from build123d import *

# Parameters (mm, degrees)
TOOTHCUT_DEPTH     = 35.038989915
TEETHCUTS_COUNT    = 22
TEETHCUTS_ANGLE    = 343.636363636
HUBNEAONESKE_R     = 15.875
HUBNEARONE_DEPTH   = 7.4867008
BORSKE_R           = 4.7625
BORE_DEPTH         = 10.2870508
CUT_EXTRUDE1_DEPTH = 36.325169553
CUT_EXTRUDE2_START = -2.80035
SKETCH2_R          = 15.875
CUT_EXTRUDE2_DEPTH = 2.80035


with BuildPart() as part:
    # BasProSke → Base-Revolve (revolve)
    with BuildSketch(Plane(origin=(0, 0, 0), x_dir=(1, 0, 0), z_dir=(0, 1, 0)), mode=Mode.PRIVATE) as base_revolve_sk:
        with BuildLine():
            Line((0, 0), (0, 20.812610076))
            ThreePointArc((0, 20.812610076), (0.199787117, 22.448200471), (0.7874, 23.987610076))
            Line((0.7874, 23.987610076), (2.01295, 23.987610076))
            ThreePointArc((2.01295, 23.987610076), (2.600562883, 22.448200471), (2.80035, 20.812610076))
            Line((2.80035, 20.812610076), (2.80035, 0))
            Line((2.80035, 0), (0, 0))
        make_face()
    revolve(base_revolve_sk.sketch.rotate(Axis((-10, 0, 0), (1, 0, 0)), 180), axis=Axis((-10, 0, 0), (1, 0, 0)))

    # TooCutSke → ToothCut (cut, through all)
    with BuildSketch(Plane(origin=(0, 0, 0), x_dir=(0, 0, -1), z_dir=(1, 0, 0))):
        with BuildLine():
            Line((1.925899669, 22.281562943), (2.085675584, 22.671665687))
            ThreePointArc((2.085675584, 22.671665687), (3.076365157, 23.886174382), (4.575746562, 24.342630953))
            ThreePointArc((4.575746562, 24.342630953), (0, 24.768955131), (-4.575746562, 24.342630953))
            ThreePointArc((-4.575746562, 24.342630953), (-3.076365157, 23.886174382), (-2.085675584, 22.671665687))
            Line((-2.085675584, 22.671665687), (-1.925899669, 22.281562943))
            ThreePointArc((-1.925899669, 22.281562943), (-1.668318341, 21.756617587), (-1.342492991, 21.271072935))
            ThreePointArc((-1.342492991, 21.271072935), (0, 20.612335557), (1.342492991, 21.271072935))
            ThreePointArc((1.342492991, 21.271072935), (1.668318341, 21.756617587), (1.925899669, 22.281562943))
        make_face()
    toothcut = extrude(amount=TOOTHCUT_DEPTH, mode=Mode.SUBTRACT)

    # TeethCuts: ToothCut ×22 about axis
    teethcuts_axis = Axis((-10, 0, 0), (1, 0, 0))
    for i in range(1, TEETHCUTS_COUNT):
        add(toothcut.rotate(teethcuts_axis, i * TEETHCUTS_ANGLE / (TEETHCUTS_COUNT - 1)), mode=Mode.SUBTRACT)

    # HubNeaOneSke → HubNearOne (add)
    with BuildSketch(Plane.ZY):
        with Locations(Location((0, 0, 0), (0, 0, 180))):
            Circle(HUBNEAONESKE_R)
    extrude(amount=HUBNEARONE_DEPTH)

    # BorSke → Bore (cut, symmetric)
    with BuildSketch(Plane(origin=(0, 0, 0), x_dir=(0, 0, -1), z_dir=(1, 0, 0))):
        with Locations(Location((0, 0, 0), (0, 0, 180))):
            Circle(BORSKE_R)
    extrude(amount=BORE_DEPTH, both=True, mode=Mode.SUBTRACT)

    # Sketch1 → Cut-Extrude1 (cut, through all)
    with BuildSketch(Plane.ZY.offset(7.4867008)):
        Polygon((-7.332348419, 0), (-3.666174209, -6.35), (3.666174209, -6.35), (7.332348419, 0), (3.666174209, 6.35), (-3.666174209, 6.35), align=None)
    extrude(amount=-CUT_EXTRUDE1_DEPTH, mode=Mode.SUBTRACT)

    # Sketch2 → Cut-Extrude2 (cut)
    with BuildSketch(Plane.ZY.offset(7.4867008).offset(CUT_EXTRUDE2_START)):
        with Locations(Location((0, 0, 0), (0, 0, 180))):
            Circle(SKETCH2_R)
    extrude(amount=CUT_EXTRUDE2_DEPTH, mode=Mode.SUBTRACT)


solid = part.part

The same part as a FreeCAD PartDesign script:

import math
import FreeCAD as App
import Part
import Sketcher
Q = App.Units.Quantity

doc = App.newDocument("Part")
body = doc.addObject("PartDesign::Body", "Body")

# Sketch on XZ plane
sketch1 = body.newObject("Sketcher::SketchObject", "Sketch")
sketch1.AttachmentSupport = (doc.getObject("XZ_Plane"), [""])
sketch1.MapMode = "FlatFace"
sketch1.addGeometry(Part.LineSegment(App.Vector(0, -20.8, 0), App.Vector(0, 0, 0)), False)
sketch1.addGeometry(Part.LineSegment(App.Vector(0, 0, 0), App.Vector(2.8, 0, 0)), False)
sketch1.addGeometry(Part.LineSegment(App.Vector(2.8, 0, 0), App.Vector(2.8, -20.8, 0)), False)
sketch1.addGeometry(Part.ArcOfCircle(Part.Circle(App.Vector(-4, -20.8, 0), App.Vector(0, 0, 1), 6.8), math.radians(-28), math.radians(0)), False)
sketch1.addGeometry(Part.LineSegment(App.Vector(2, -24, 0), App.Vector(0.8, -24, 0)), False)
sketch1.addGeometry(Part.ArcOfCircle(Part.Circle(App.Vector(6.8, -20.8, 0), App.Vector(0, 0, 1), 6.8), math.radians(180), math.radians(208)), False)
sketch1.addConstraint(Sketcher.Constraint("Coincident", 0, 2, 1, 1))
sketch1.addConstraint(Sketcher.Constraint("Coincident", 1, 2, 2, 1))
sketch1.addConstraint(Sketcher.Constraint("Tangent", 2, 2, 3, 2))
sketch1.addConstraint(Sketcher.Constraint("Coincident", 3, 1, 4, 1))
sketch1.addConstraint(Sketcher.Constraint("Coincident", 4, 2, 5, 2))
sketch1.addConstraint(Sketcher.Constraint("Tangent", 5, 1, 0, 1))
sketch1.addConstraint(Sketcher.Constraint("Vertical", 0))
sketch1.addConstraint(Sketcher.Constraint("Horizontal", 1))
sketch1.addConstraint(Sketcher.Constraint("Vertical", 2))
sketch1.addConstraint(Sketcher.Constraint("Horizontal", 4))
sketch1.addConstraint(Sketcher.Constraint("Coincident", 0, 2, -1, 1))
sketch1.addConstraint(Sketcher.Constraint("Equal", 3, 5))
sketch1.addConstraint(Sketcher.Constraint("Horizontal", 3, 3, 5, 3))
sketch1.addConstraint(Sketcher.Constraint("DistanceX", -1, 1, 4, 2, Q("0.031 in")))
sketch1.addConstraint(Sketcher.Constraint("Radius", 3, 6.79491))
sketch1.addConstraint(Sketcher.Constraint("DistanceX", 1, 1, 1, 2, 2.80035))
sketch1.addConstraint(Sketcher.Constraint("DistanceY", 0, 1, 0, 2, 20.81261))
revolution = body.newObject("PartDesign::Revolution", "Revolution")
revolution.Profile = sketch1
revolution.ReferenceAxis = (sketch1, ["H_Axis"])
revolution.Angle = 360

# Sketch on YZ plane
sketch2 = body.newObject("Sketcher::SketchObject", "Sketch001")
sketch2.AttachmentSupport = (doc.getObject("YZ_Plane"), [""])
sketch2.MapMode = "FlatFace"
sketch2.addGeometry(Part.LineSegment(App.Vector(22.28, -1.93, 0), App.Vector(22.67, -2.09, 0)), False)
sketch2.addGeometry(Part.ArcOfCircle(Part.Circle(App.Vector(21.65, -4.58, 0), App.Vector(0, 0, 1), 2.69), math.radians(0), math.radians(68)), False)
sketch2.addGeometry(Part.ArcOfCircle(Part.Circle(App.Vector(0, 0, 0), App.Vector(0, 0, 1), 24.77), math.radians(-11), math.radians(11)), False)
sketch2.addGeometry(Part.ArcOfCircle(Part.Circle(App.Vector(21.65, 4.58, 0), App.Vector(0, 0, 1), 2.69), math.radians(-68), math.radians(0)), False)
sketch2.addGeometry(Part.LineSegment(App.Vector(22.67, 2.09, 0), App.Vector(22.28, 1.93, 0)), False)
sketch2.addGeometry(Part.ArcOfCircle(Part.Circle(App.Vector(23.93, -2.09, 0), App.Vector(0, 0, 1), 4.34), math.radians(112.27), math.radians(127.73)), False)
sketch2.addGeometry(Part.ArcOfCircle(Part.Circle(App.Vector(22.31, 0, 0), App.Vector(0, 0, 1), 1.7), math.radians(128), math.radians(232)), False)
sketch2.addGeometry(Part.ArcOfCircle(Part.Circle(App.Vector(23.93, 2.09, 0), App.Vector(0, 0, 1), 4.34), math.radians(-127.73), math.radians(-112.27)), False)
sketch2.addConstraint(Sketcher.Constraint("Tangent", 0, 2, 1, 2))
sketch2.addConstraint(Sketcher.Constraint("Coincident", 1, 1, 2, 1))
sketch2.addConstraint(Sketcher.Constraint("Coincident", 2, 2, 3, 2))
sketch2.addConstraint(Sketcher.Constraint("Tangent", 3, 1, 4, 1))
sketch2.addConstraint(Sketcher.Constraint("Tangent", 4, 2, 5, 1))
sketch2.addConstraint(Sketcher.Constraint("Tangent", 5, 2, 6, 1))
sketch2.addConstraint(Sketcher.Constraint("Tangent", 6, 2, 7, 1))
sketch2.addConstraint(Sketcher.Constraint("Tangent", 7, 2, 0, 1))
sketch2.addConstraint(Sketcher.Constraint("Coincident", 2, 3, -1, 1))
sketch2.addConstraint(Sketcher.Constraint("Equal", 1, 3))
sketch2.addConstraint(Sketcher.Constraint("Equal", 5, 7))
sketch2.addConstraint(Sketcher.Constraint("Symmetric", 1, 3, 3, 3, -1))
sketch2.addConstraint(Sketcher.Constraint("Symmetric", 5, 3, 7, 3, -1))
sketch2.addConstraint(Sketcher.Constraint("Horizontal", 3, 3, 2, 2))
sketch2.addConstraint(Sketcher.Constraint("Radius", 1, 2.690833))
sketch2.addConstraint(Sketcher.Constraint("Radius", 2, 24.768955))
sketch2.addConstraint(Sketcher.Constraint("Radius", 5, 4.338955))
sketch2.addConstraint(Sketcher.Constraint("Radius", 6, 1.697355))
sketch2.addConstraint(Sketcher.Constraint("DistanceY", -1, 1, 4, 2, 1.9259))
sketch2.addConstraint(Sketcher.Constraint("DistanceX", -1, 1, 6, 3, 22.309691))
sketch2.addConstraint(Sketcher.Constraint("DistanceX", -1, 1, 1, 1, 24.342631))
pocket1 = body.newObject("PartDesign::Pocket", "Pocket")
pocket1.Profile = sketch2
pocket1.Type = "ThroughAll"
pocket1.Reversed = True
doc.recompute()

polarpattern = body.newObject("PartDesign::PolarPattern", "PolarPattern")
polarpattern.Originals = [pocket1]
polarpattern.Axis = (doc.getObject("X_Axis"), [""])
polarpattern.Angle = 360
polarpattern.Occurrences = 22
body.Tip = polarpattern

# Sketch on YZ plane
sketch3 = body.newObject("Sketcher::SketchObject", "Sketch002")
sketch3.AttachmentSupport = (doc.getObject("YZ_Plane"), [""])
sketch3.MapMode = "FlatFace"
sketch3.addGeometry(Part.Circle(App.Vector(0, 0, 0), App.Vector(0, 0, 1), 16), False)
sketch3.addConstraint(Sketcher.Constraint("Coincident", 0, 3, -1, 1))
sketch3.addConstraint(Sketcher.Constraint("Diameter", 0, Q("1.25 in")))
pad1 = body.newObject("PartDesign::Pad", "Pad")
pad1.Profile = sketch3
pad1.Length = 7.486701
pad1.Reversed = True

# Sketch on YZ plane
sketch4 = body.newObject("Sketcher::SketchObject", "Sketch003")
sketch4.AttachmentSupport = (doc.getObject("YZ_Plane"), [""])
sketch4.MapMode = "FlatFace"
sketch4.addGeometry(Part.Circle(App.Vector(0, 0, 0), App.Vector(0, 0, 1), 4.8), False)
sketch4.addConstraint(Sketcher.Constraint("Coincident", 0, 3, -1, 1))
sketch4.addConstraint(Sketcher.Constraint("Diameter", 0, Q("0.375 in")))
pocket2 = body.newObject("PartDesign::Pocket", "Pocket001")
pocket2.Profile = sketch4
pocket2.Length = 20.574102
pocket2.Midplane = True

# Sketch on YZ plane
sketch5 = body.newObject("Sketcher::SketchObject", "Sketch004")
sketch5.AttachmentSupport = (doc.getObject("YZ_Plane"), [""])
sketch5.MapMode = "FlatFace"
sketch5.AttachmentOffset = App.Placement(App.Vector(0, 0, -7.486701), App.Rotation())
sketch5.addGeometry(Part.LineSegment(App.Vector(0, -7, 0), App.Vector(-6, -4, 0)), False)
sketch5.addGeometry(Part.LineSegment(App.Vector(-6, -4, 0), App.Vector(-6, 4, 0)), False)
sketch5.addGeometry(Part.LineSegment(App.Vector(-6, 4, 0), App.Vector(0, 7, 0)), False)
sketch5.addGeometry(Part.LineSegment(App.Vector(0, 7, 0), App.Vector(6, 4, 0)), False)
sketch5.addGeometry(Part.LineSegment(App.Vector(6, 4, 0), App.Vector(6, -4, 0)), False)
sketch5.addGeometry(Part.LineSegment(App.Vector(6, -4, 0), App.Vector(0, -7, 0)), False)
sketch5.addConstraint(Sketcher.Constraint("Coincident", 0, 2, 1, 1))
sketch5.addConstraint(Sketcher.Constraint("Coincident", 1, 2, 2, 1))
sketch5.addConstraint(Sketcher.Constraint("Coincident", 2, 2, 3, 1))
sketch5.addConstraint(Sketcher.Constraint("Coincident", 3, 2, 4, 1))
sketch5.addConstraint(Sketcher.Constraint("Coincident", 4, 2, 5, 1))
sketch5.addConstraint(Sketcher.Constraint("Coincident", 5, 2, 0, 1))
sketch5.addConstraint(Sketcher.Constraint("Vertical", 1))
sketch5.addConstraint(Sketcher.Constraint("Vertical", 4))
sketch5.addConstraint(Sketcher.Constraint("Symmetric", 0, 2, 3, 2, -1, 1))
sketch5.addConstraint(Sketcher.Constraint("Symmetric", 2, 2, 5, 2, -1, 1))
sketch5.addConstraint(Sketcher.Constraint("PointOnObject", 2, 2, -2))
sketch5.addConstraint(Sketcher.Constraint("Parallel", 2, 5))
sketch5.addConstraint(Sketcher.Constraint("Horizontal", 1, 2, 3, 2))
sketch5.addConstraint(Sketcher.Constraint("Angle", 0, Q("150 deg")))
sketch5.addConstraint(Sketcher.Constraint("DistanceX", 1, 2, 3, 2, Q("0.5 in")))
sketch5.addConstraint(Sketcher.Constraint("DistanceY", 1, 1, 1, 2, 7.332348))
pocket3 = body.newObject("PartDesign::Pocket", "Pocket002")
pocket3.Profile = sketch5
pocket3.Type = "ThroughAll"
pocket3.Reversed = True

# Sketch on YZ plane
sketch6 = body.newObject("Sketcher::SketchObject", "Sketch005")
sketch6.AttachmentSupport = (doc.getObject("YZ_Plane"), [""])
sketch6.MapMode = "FlatFace"
sketch6.AttachmentOffset = App.Placement(App.Vector(0, 0, -4.686351), App.Rotation())
sketch6.addGeometry(Part.Circle(App.Vector(0, 0, 0), App.Vector(0, 0, 1), 16), False)
sketch6.addConstraint(Sketcher.Constraint("Coincident", 0, 3, -1, 1))
sketch6.addConstraint(Sketcher.Constraint("Diameter", 0, Q("1.25 in")))
pocket4 = body.newObject("PartDesign::Pocket", "Pocket003")
pocket4.Profile = sketch6
pocket4.Length = 2.80035

doc.recompute()
